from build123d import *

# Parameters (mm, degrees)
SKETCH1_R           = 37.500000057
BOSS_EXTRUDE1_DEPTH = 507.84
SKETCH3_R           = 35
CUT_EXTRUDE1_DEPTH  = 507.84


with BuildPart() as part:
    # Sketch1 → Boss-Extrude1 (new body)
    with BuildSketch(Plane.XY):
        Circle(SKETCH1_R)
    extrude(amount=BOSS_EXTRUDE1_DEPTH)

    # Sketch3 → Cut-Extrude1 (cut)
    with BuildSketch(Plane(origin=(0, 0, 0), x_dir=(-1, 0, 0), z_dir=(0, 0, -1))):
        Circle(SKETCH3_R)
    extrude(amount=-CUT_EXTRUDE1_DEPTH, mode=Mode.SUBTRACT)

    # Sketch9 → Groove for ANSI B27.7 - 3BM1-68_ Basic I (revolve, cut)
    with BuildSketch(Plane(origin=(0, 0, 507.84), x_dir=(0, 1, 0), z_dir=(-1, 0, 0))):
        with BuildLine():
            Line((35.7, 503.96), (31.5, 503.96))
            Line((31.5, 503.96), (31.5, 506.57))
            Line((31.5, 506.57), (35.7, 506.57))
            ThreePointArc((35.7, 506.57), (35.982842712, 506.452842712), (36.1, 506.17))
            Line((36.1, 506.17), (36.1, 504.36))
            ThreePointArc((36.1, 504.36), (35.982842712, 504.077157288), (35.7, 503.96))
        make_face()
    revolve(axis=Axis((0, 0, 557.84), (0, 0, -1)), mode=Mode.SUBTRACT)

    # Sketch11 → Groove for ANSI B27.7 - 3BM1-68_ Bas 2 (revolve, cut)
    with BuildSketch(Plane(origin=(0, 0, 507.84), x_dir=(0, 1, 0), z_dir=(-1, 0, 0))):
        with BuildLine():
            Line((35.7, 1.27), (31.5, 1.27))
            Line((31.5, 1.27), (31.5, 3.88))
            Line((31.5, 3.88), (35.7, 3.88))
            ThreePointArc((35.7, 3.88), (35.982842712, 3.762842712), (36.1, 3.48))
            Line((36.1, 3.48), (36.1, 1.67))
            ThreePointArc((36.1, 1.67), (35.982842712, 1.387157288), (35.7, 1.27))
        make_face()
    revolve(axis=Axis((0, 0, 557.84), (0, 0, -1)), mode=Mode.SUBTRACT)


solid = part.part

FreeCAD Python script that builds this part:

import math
import FreeCAD as App
import Part
import Sketcher

V = App.Vector

doc = App.newDocument("Part")
body = doc.addObject("PartDesign::Body", "Body")

# Sketch on XY plane
sketch1 = body.newObject("Sketcher::SketchObject", "Sketch")
sketch1.AttachmentSupport = (doc.getObject("XY_Plane"), [""])
sketch1.MapMode = "FlatFace"
sketch1.addGeometry(Part.Circle(V(0, 0, 0), V(0, 0, 1), 37.5), False)
sketch1.addConstraint([
    Sketcher.Constraint("Coincident", 0, 3, -1, 1),
    Sketcher.Constraint("Diameter", 0, 75.0),
])
pad1 = body.newObject("PartDesign::Pad", "Pad")
pad1.Profile = sketch1
pad1.Length = 507.84

# Sketch on XY plane
sketch2 = body.newObject("Sketcher::SketchObject", "Sketch001")
sketch2.AttachmentSupport = (doc.getObject("XY_Plane"), [""])
sketch2.MapMode = "FlatFace"
sketch2.addGeometry(Part.Circle(V(0, 0, 0), V(0, 0, 1), 35), False)
sketch2.addConstraint([
    Sketcher.Constraint("Coincident", 0, 3, -1, 1),
    Sketcher.Constraint("Diameter", 0, 70.0),
])
pocket1 = body.newObject("PartDesign::Pocket", "Pocket")
pocket1.Profile = sketch2
pocket1.Length = 507.84
pocket1.Reversed = True

# Sketch on YZ plane
sketch3 = body.newObject("Sketcher::SketchObject", "Sketch002")
sketch3.AttachmentSupport = (doc.getObject("YZ_Plane"), [""])
sketch3.MapMode = "FlatFace"
sketch3.addGeometry([
    Part.LineSegment(V(31.5, 3.88, 0), V(35.7, 3.88, 0)),  # 0
    Part.ArcOfCircle(Part.Circle(V(35.7, 3.48, 0), V(0, 0, 1), 0.4), math.radians(0), math.radians(90)),  # 1
    Part.LineSegment(V(36.1, 3.48, 0), V(36.1, 1.67, 0)),  # 2
    Part.ArcOfCircle(Part.Circle(V(35.7, 1.67, 0), V(0, 0, 1), 0.4), math.radians(-90), math.radians(0)),  # 3
    Part.LineSegment(V(35.7, 1.27, 0), V(31.5, 1.27, 0)),  # 4
    Part.LineSegment(V(31.5, 1.27, 0), V(31.5, 3.88, 0)),  # 5
], False)
sketch3.addConstraint([
    Sketcher.Constraint("Tangent", 0, 2, 1, 2),
    Sketcher.Constraint("Tangent", 1, 1, 2, 1),
    Sketcher.Constraint("Tangent", 2, 2, 3, 2),
    Sketcher.Constraint("Tangent", 3, 1, 4, 1),
    Sketcher.Constraint("Coincident", 4, 2, 5, 1),
    Sketcher.Constraint("Coincident", 5, 2, 0, 1),
    Sketcher.Constraint("Horizontal", 0),
    Sketcher.Constraint("Vertical", 2),
    Sketcher.Constraint("Horizontal", 4),
    Sketcher.Constraint("Vertical", 5),
    Sketcher.Constraint("Equal", 1, 3),
    Sketcher.Constraint("Radius", 1, 0.4),
    Sketcher.Constraint("DistanceX", 0, 1, 0, 2, 4.2),
    Sketcher.Constraint("DistanceY", 2, 2, 2, 1, 1.81),
    Sketcher.Constraint("DistanceX", -1, 1, 1, 3, 35.7),
    Sketcher.Constraint("DistanceY", -1, 1, 1, 3, 3.48),
])
groove = body.newObject("PartDesign::Groove", "Groove")
groove.Profile = sketch3
groove.ReferenceAxis = (sketch3, ["V_Axis"])
groove.Angle = 360

# Sketch on YZ plane
sketch4 = body.newObject("Sketcher::SketchObject", "Sketch003")
sketch4.AttachmentSupport = (doc.getObject("YZ_Plane"), [""])
sketch4.MapMode = "FlatFace"
sketch4.addGeometry([
    Part.LineSegment(V(31.5, 506.57, 0), V(35.7, 506.57, 0)),  # 0
    Part.ArcOfCircle(Part.Circle(V(35.7, 506.17, 0), V(0, 0, 1), 0.4), math.radians(0), math.radians(90)),  # 1
    Part.LineSegment(V(36.1, 506.17, 0), V(36.1, 504.36, 0)),  # 2
    Part.ArcOfCircle(Part.Circle(V(35.7, 504.36, 0), V(0, 0, 1), 0.4), math.radians(-90), math.radians(0)),  # 3
    Part.LineSegment(V(35.7, 503.96, 0), V(31.5, 503.96, 0)),  # 4
    Part.LineSegment(V(31.5, 503.96, 0), V(31.5, 506.57, 0)),  # 5
], False)
sketch4.addConstraint([
    Sketcher.Constraint("Tangent", 0, 2, 1, 2),
    Sketcher.Constraint("Tangent", 1, 1, 2, 1),
    Sketcher.Constraint("Tangent", 2, 2, 3, 2),
    Sketcher.Constraint("Tangent", 3, 1, 4, 1),
    Sketcher.Constraint("Coincident", 4, 2, 5, 1),
    Sketcher.Constraint("Coincident", 5, 2, 0, 1),
    Sketcher.Constraint("Horizontal", 0),
    Sketcher.Constraint("Vertical", 2),
    Sketcher.Constraint("Horizontal", 4),
    Sketcher.Constraint("Vertical", 5),
    Sketcher.Constraint("Equal", 1, 3),
    Sketcher.Constraint("Radius", 1, 0.4),
    Sketcher.Constraint("DistanceX", 0, 1, 0, 2, 4.2),
    Sketcher.Constraint("DistanceY", 2, 2, 2, 1, 1.81),
    Sketcher.Constraint("DistanceX", -1, 1, 1, 3, 35.7),
    Sketcher.Constraint("DistanceY", -1, 1, 1, 3, 506.17),
])
groove2 = body.newObject("PartDesign::Groove", "Groove001")
groove2.Profile = sketch4
groove2.ReferenceAxis = (sketch4, ["V_Axis"])
groove2.Angle = 360

doc.recompute()
